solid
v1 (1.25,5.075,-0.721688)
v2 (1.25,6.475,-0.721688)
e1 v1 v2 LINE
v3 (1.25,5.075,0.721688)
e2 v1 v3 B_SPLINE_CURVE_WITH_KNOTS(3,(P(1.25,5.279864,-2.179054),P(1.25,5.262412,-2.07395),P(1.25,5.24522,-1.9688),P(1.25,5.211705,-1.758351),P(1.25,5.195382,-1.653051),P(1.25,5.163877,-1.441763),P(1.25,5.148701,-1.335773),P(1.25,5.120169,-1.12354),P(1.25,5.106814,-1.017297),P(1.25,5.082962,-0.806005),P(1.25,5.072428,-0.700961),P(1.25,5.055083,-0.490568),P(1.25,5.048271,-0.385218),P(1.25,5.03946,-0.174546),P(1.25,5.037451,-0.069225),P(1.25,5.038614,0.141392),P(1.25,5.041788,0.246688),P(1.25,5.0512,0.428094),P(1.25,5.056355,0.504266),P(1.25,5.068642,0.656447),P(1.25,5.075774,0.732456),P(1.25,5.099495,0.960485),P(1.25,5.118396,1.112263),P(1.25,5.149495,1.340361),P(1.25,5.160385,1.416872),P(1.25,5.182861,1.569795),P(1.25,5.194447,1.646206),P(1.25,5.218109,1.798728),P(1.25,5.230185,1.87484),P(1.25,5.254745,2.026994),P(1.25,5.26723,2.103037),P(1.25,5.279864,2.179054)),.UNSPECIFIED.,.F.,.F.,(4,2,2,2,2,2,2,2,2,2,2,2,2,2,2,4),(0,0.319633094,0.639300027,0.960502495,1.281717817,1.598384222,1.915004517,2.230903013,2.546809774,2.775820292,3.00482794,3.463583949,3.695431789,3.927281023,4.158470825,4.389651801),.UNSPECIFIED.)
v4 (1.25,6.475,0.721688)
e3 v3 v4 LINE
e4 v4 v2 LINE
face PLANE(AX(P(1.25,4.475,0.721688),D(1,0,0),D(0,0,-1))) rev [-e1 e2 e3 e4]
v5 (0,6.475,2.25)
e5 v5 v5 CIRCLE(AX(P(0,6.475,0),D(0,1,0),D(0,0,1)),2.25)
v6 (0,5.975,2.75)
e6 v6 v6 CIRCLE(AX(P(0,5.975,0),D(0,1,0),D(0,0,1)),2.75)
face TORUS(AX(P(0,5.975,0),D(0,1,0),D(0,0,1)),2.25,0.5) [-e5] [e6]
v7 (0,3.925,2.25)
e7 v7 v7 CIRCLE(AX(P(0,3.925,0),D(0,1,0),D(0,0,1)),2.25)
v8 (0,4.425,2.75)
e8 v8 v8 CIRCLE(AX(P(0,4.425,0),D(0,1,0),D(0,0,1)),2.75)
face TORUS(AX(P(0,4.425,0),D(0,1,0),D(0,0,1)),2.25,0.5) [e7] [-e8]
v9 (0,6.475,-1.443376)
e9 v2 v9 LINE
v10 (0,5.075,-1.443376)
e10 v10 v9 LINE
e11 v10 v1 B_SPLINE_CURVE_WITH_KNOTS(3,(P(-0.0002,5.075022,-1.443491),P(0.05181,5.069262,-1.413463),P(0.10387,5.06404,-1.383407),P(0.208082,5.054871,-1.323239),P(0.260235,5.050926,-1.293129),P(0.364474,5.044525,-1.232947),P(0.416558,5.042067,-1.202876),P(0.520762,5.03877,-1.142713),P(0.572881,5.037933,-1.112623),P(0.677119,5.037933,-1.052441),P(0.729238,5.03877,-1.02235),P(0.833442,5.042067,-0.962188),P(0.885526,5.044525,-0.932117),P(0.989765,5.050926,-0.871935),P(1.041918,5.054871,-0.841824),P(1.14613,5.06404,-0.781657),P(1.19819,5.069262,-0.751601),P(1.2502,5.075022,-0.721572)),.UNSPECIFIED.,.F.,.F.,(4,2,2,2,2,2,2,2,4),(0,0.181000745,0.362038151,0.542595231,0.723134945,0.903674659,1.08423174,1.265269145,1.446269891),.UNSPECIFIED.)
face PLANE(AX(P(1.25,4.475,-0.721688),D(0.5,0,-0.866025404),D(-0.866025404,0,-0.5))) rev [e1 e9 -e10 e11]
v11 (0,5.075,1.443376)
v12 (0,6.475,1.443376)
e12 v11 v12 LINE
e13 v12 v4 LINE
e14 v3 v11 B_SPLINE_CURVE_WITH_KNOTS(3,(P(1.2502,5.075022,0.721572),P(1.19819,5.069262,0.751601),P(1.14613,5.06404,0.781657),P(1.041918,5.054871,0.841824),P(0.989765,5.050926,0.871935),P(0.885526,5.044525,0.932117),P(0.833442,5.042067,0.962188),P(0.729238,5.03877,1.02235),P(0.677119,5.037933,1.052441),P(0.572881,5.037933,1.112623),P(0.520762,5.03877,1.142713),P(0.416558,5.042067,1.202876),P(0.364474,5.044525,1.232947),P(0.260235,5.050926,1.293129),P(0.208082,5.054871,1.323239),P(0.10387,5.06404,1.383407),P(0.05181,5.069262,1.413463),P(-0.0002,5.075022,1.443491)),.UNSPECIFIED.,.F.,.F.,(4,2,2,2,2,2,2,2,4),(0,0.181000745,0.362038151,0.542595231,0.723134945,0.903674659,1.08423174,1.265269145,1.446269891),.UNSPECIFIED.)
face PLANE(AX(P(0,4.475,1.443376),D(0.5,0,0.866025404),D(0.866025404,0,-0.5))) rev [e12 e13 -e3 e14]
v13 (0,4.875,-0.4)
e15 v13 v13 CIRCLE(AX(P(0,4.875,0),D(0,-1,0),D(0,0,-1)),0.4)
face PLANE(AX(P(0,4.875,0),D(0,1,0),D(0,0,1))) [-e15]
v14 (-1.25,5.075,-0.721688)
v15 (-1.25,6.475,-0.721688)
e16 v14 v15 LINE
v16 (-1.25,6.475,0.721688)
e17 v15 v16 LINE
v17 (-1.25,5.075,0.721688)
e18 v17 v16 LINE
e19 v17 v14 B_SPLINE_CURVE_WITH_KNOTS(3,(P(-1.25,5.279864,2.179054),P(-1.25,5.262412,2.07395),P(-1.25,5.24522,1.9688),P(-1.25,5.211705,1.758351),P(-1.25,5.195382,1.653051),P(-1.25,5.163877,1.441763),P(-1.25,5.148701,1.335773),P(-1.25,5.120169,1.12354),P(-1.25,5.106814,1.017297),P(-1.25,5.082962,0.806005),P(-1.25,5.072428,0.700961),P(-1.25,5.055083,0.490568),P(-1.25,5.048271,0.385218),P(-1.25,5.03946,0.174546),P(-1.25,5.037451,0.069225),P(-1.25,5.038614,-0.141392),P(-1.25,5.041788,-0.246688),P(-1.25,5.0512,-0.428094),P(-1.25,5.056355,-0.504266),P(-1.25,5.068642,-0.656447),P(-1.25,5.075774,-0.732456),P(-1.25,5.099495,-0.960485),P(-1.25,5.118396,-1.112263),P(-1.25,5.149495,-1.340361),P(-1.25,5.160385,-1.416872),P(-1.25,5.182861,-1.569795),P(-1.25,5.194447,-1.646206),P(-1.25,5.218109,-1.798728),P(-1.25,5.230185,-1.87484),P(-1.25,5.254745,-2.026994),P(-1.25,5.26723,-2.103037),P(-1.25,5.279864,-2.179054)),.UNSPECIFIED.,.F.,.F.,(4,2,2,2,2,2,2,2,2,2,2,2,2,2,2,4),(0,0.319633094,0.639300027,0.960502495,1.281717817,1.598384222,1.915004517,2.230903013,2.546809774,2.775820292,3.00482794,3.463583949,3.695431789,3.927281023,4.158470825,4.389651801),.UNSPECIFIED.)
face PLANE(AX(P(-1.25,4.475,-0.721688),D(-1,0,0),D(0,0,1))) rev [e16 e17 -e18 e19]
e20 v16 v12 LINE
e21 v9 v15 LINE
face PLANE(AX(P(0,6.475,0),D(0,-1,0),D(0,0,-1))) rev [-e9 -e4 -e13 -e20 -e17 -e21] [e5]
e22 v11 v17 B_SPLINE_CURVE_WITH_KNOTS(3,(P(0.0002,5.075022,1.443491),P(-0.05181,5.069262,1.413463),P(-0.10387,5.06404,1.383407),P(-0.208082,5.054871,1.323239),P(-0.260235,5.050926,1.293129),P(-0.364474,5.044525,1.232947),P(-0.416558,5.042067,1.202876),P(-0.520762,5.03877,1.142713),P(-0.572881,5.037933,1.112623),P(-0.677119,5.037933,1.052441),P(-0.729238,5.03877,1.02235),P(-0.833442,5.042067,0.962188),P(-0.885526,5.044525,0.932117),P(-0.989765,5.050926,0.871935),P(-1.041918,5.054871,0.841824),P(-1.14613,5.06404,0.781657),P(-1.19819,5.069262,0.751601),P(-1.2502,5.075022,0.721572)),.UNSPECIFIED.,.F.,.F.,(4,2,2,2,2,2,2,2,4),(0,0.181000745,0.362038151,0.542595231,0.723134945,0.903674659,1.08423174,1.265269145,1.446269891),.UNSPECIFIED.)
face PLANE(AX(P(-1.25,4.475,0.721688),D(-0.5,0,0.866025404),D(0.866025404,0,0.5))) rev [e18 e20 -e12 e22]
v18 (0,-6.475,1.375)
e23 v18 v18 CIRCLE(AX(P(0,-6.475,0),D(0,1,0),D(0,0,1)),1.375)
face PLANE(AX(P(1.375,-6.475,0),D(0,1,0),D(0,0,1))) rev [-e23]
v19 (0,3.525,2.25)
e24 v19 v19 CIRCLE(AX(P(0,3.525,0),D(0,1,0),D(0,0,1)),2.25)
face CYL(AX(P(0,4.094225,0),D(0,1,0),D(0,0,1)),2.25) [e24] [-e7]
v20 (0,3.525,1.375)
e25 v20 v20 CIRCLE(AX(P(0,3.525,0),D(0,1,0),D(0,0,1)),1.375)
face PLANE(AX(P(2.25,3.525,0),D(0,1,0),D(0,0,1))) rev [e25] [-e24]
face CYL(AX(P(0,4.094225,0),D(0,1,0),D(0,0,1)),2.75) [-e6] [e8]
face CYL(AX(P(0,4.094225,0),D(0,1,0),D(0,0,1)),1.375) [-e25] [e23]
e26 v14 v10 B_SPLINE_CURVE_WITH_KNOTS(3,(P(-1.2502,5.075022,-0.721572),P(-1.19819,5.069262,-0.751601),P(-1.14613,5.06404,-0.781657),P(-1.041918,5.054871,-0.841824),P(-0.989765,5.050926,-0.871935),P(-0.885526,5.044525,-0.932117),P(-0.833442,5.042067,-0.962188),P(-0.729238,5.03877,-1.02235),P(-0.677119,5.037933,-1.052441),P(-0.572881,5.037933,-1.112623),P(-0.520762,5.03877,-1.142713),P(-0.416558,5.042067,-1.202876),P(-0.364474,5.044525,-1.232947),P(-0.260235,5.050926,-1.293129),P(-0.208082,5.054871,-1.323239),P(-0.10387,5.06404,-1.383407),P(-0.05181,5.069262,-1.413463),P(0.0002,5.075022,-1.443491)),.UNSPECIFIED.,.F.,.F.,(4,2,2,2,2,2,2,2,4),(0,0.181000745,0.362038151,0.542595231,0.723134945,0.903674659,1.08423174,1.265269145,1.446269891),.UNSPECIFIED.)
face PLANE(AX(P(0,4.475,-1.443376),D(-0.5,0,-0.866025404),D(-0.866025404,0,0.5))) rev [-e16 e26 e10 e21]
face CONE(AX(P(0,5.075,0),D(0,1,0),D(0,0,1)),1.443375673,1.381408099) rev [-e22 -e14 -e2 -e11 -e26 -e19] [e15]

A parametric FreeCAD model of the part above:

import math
import FreeCAD as App
import Part
import Sketcher
from FreeCAD import Vector
Q = App.Units.Quantity


def add_polygon(sketch, points):
    """Adds a closed chain of lines whose ends are joined by coincident constraints."""
    first, n = sketch.GeometryCount, len(points)
    for a, b in zip(points, points[1:] + points[:1]):
        sketch.addGeometry(Part.LineSegment(App.Vector(*a, 0), App.Vector(*b, 0)), False)
    for i in range(n):
        sketch.addConstraint(Sketcher.Constraint("Coincident", first + i, 2, first + (i + 1) % n, 1))

doc = App.newDocument("Part")
body = doc.addObject("PartDesign::Body", "Body")

# Sketch on XY plane
sketch1 = doc.addObject("Sketcher::SketchObject", "Sketch")
body.addObject(sketch1)
sketch1.AttachmentSupport = (doc.XY_Plane, [""])
sketch1.MapMode = "FlatFace"
sketch1.addGeometry(Part.LineSegment(Vector(2.25, 6.475, 0), Vector(0, 6.475, 0)), False)
sketch1.addGeometry(Part.LineSegment(Vector(0, 6.475, 0), Vector(0, -6.475, 0)), False)
sketch1.addGeometry(Part.LineSegment(Vector(0, -6.475, 0), Vector(1.375, -6.475, 0)), False)
sketch1.addGeometry(Part.LineSegment(Vector(1.375, -6.475, 0), Vector(1.375, 3.525, 0)), False)
sketch1.addGeometry(Part.LineSegment(Vector(1.375, 3.525, 0), Vector(2.25, 3.525, 0)), False)
sketch1.addGeometry(Part.LineSegment(Vector(2.25, 3.525, 0), Vector(2.25, 3.925, 0)), False)
sketch1.addGeometry(Part.ArcOfCircle(Part.Circle(Vector(2.25, 4.425, 0), Vector(0, 0, 1), 0.5), math.radians(-90), math.radians(0)), False)
sketch1.addGeometry(Part.LineSegment(Vector(2.75, 4.425, 0), Vector(2.75, 5.975, 0)), False)
sketch1.addGeometry(Part.ArcOfCircle(Part.Circle(Vector(2.25, 5.975, 0), Vector(0, 0, 1), 0.5), math.radians(0), math.radians(90)), False)
sketch1.addConstraint(Sketcher.Constraint("Coincident", 0, 2, 1, 1))
sketch1.addConstraint(Sketcher.Constraint("Coincident", 1, 2, 2, 1))
sketch1.addConstraint(Sketcher.Constraint("Coincident", 2, 2, 3, 1))
sketch1.addConstraint(Sketcher.Constraint("Coincident", 3, 2, 4, 1))
sketch1.addConstraint(Sketcher.Constraint("Coincident", 4, 2, 5, 1))
sketch1.addConstraint(Sketcher.Constraint("Coincident", 5, 2, 6, 1))
sketch1.addConstraint(Sketcher.Constraint("Tangent", 6, 2, 7, 1))
sketch1.addConstraint(Sketcher.Constraint("Tangent", 7, 2, 8, 1))
sketch1.addConstraint(Sketcher.Constraint("Tangent", 8, 2, 0, 1))
sketch1.addConstraint(Sketcher.Constraint("Horizontal", 0))
sketch1.addConstraint(Sketcher.Constraint("Vertical", 1))
sketch1.addConstraint(Sketcher.Constraint("Horizontal", 2))
sketch1.addConstraint(Sketcher.Constraint("Vertical", 3))
sketch1.addConstraint(Sketcher.Constraint("Horizontal", 4))
sketch1.addConstraint(Sketcher.Constraint("Vertical", 5))
sketch1.addConstraint(Sketcher.Constraint("Vertical", 7))
sketch1.addConstraint(Sketcher.Constraint("Equal", 6, 8))
sketch1.addConstraint(Sketcher.Constraint("Symmetric", 0, 2, 1, 2, -1, 1))
sketch1.addConstraint(Sketcher.Constraint("Vertical", 8, 3, 4, 2))
sketch1.addConstraint(Sketcher.Constraint("Radius", 6, 0.5))
sketch1.addConstraint(Sketcher.Constraint("DistanceY", 3, 1, 3, 2, 10.0))
sketch1.addConstraint(Sketcher.Constraint("DistanceY", 5, 1, 5, 2, 0.4))
sketch1.addConstraint(Sketcher.Constraint("DistanceX", 0, 2, 0, 1, 2.25))
sketch1.addConstraint(Sketcher.Constraint("DistanceY", 1, 2, 1, 1, 12.95))
sketch1.addConstraint(Sketcher.Constraint("DistanceX", 2, 1, 2, 2, 1.375))
revolution = doc.addObject("PartDesign::Revolution", "Revolution")
body.addObject(revolution)
revolution.Profile = sketch1
revolution.ReferenceAxis = (sketch1, ["V_Axis"])
revolution.Angle = 360
body2 = doc.addObject("PartDesign::Body", "Body001")

# Sketch on XZ plane
sketch2 = doc.addObject("Sketcher::SketchObject", "Sketch001")
body2.addObject(sketch2)
sketch2.AttachmentSupport = (doc.getObject("XZ_Plane001"), [""])
sketch2.MapMode = "FlatFace"
sketch2.AttachmentOffset = App.Placement(Vector(0, 0, -6.475), App.Rotation())
add_polygon(sketch2, [(0, -1.443376), (-1.25, -0.721688), (-1.25, 0.721688), (0, 1.443376), (1.25, 0.721688), (1.25, -0.721688)])  # lines 0-5
sketch2.addConstraint(Sketcher.Constraint("Vertical", 1))
sketch2.addConstraint(Sketcher.Constraint("Vertical", 4))
sketch2.addConstraint(Sketcher.Constraint("Symmetric", 0, 2, 3, 2, -1, 1))
sketch2.addConstraint(Sketcher.Constraint("Symmetric", 2, 2, 5, 2, -1, 1))
sketch2.addConstraint(Sketcher.Constraint("PointOnObject", 2, 2, -2))
sketch2.addConstraint(Sketcher.Constraint("Parallel", 2, 5))
sketch2.addConstraint(Sketcher.Constraint("Horizontal", 1, 2, 3, 2))
sketch2.addConstraint(Sketcher.Constraint("Angle", 0, Q("150 deg")))
sketch2.addConstraint(Sketcher.Constraint("DistanceX", 1, 2, 3, 2, 2.5))
sketch2.addConstraint(Sketcher.Constraint("DistanceY", 1, 1, 1, 2, 1.443376))
pad1 = doc.addObject("PartDesign::Pad", "Pad")
body2.addObject(pad1)
pad1.Profile = sketch2
pad1.Length = 2

# Sketch on YZ plane
sketch3 = doc.addObject("Sketcher::SketchObject", "Sketch002")
body2.addObject(sketch3)
sketch3.AttachmentSupport = (doc.getObject("YZ_Plane001"), [""])
sketch3.MapMode = "FlatFace"
add_polygon(sketch3, [(4.875, -0.4), (4.875, 0), (4.475, 0), (4.475, -1.443376), (5.075, -1.443376)])  # lines 0-4
sketch3.addConstraint(Sketcher.Constraint("Vertical", 0))
sketch3.addConstraint(Sketcher.Constraint("Horizontal", 1))
sketch3.addConstraint(Sketcher.Constraint("Vertical", 2))
sketch3.addConstraint(Sketcher.Constraint("Horizontal", 3))
sketch3.addConstraint(Sketcher.Constraint("PointOnObject", 0, 2, -1))
sketch3.addConstraint(Sketcher.Constraint("Equal", 1, 0))
sketch3.addConstraint(Sketcher.Constraint("DistanceX", 1, 2, 1, 1, 0.4))
sketch3.addConstraint(Sketcher.Constraint("DistanceX", 3, 1, 3, 2, 0.6))
sketch3.addConstraint(Sketcher.Constraint("DistanceX", -1, 1, 0, 2, 4.875))
sketch3.addConstraint(Sketcher.Constraint("Distance", 4, 1.062371))
groove = doc.addObject("PartDesign::Groove", "Groove")
body2.addObject(groove)
groove.Profile = sketch3
groove.ReferenceAxis = (sketch3, ["H_Axis"])
groove.Angle = 360
doc.recompute()

boolean = doc.addObject("PartDesign::Boolean", "Boolean")
body.addObject(boolean)
boolean.Type = "Cut"
boolean.addObjects([body2])

doc.recompute()
